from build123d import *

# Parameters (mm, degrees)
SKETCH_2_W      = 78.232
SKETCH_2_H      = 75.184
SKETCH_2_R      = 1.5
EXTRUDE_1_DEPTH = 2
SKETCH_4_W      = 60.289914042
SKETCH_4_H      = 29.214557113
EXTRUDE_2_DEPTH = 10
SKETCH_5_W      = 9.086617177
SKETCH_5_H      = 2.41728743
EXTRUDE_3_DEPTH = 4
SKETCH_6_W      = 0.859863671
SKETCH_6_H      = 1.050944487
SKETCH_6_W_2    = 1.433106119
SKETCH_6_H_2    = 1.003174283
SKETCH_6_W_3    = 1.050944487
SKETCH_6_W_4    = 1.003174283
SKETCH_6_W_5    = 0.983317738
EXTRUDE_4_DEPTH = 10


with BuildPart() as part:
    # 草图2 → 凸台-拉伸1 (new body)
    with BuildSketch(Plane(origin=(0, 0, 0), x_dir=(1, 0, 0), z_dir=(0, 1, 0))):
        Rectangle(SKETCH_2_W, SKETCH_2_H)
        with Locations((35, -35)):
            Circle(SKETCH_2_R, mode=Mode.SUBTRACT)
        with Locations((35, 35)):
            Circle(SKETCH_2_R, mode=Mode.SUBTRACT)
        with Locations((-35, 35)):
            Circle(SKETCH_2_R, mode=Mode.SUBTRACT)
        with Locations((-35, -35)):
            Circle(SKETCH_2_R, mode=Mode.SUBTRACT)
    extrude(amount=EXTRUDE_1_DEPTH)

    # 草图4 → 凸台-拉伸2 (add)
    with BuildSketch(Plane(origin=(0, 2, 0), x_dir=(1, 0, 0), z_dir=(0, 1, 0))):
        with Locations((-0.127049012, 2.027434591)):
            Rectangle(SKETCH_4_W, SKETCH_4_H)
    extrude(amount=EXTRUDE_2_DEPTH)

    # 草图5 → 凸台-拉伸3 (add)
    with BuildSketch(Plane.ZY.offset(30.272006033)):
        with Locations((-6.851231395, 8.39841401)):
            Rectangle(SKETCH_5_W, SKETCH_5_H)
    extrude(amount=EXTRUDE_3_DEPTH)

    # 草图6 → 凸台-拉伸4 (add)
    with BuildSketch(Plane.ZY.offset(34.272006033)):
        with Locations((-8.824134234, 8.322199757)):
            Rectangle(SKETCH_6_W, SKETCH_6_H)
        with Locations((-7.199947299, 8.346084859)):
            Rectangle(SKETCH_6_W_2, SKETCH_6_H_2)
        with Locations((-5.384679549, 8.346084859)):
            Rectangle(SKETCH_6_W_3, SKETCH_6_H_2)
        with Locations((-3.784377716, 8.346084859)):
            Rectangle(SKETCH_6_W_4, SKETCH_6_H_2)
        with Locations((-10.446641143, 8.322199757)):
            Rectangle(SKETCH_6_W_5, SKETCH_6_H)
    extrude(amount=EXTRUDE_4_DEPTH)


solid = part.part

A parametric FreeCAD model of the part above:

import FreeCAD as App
import Part
import Sketcher
from FreeCAD import Vector


def add_polygon(sketch, points):
    """Adds a closed chain of lines whose ends are joined by coincident constraints."""
    first, n = sketch.GeometryCount, len(points)
    for a, b in zip(points, points[1:] + points[:1]):
        sketch.addGeometry(Part.LineSegment(App.Vector(*a, 0), App.Vector(*b, 0)), False)
    for i in range(n):
        sketch.addConstraint(Sketcher.Constraint("Coincident", first + i, 2, first + (i + 1) % n, 1))

doc = App.newDocument("Part")
body = doc.addObject("PartDesign::Body", "Body")

sketch1 = doc.addObject("Sketcher::SketchObject", "Sketch")
body.addObject(sketch1)
sketch1.AttachmentSupport = (doc.XZ_Plane, [""])
sketch1.MapMode = "FlatFace"
add_polygon(sketch1, [(-39.1, -37.6), (-39.1, 37.6), (39.1, 37.6), (39.1, -37.6)])
sketch1.addGeometry(Part.Circle(Vector(-35, 35, 0), Vector(0, 0, 1), 1.5), False)
sketch1.addGeometry(Part.Circle(Vector(35, 35, 0), Vector(0, 0, 1), 1.5), False)
sketch1.addGeometry(Part.Circle(Vector(-35, -35, 0), Vector(0, 0, 1), 1.5), False)
sketch1.addGeometry(Part.Circle(Vector(35, -35, 0), Vector(0, 0, 1), 1.5), False)
sketch1.addConstraint(Sketcher.Constraint("Vertical", 0))
sketch1.addConstraint(Sketcher.Constraint("Horizontal", 1))
sketch1.addConstraint(Sketcher.Constraint("Vertical", 2))
sketch1.addConstraint(Sketcher.Constraint("Horizontal", 3))
sketch1.addConstraint(Sketcher.Constraint("Equal", 4, 5))
sketch1.addConstraint(Sketcher.Constraint("Equal", 5, 6))
sketch1.addConstraint(Sketcher.Constraint("Equal", 6, 7))
sketch1.addConstraint(Sketcher.Constraint("Symmetric", 5, 3, 6, 3, -1, 1))
sketch1.addConstraint(Sketcher.Constraint("Symmetric", 4, 3, 7, 3, -1, 1))
sketch1.addConstraint(Sketcher.Constraint("Symmetric", 0, 2, 2, 2, -1, 1))
sketch1.addConstraint(Sketcher.Constraint("Symmetric", 4, 3, 5, 3, -2))
sketch1.addConstraint(Sketcher.Constraint("Diameter", 4, 3.0))
sketch1.addConstraint(Sketcher.Constraint("DistanceX", 4, 3, -1, 1, 35.0))
sketch1.addConstraint(Sketcher.Constraint("DistanceY", -1, 1, 4, 3, 35.0))
sketch1.addConstraint(Sketcher.Constraint("DistanceX", 1, 1, 1, 2, 78.232))
sketch1.addConstraint(Sketcher.Constraint("DistanceY", 0, 1, 0, 2, 75.184))
pad1 = doc.addObject("PartDesign::Pad", "Pad")
body.addObject(pad1)
pad1.Profile = sketch1
pad1.Length = 2
pad1.Reversed = True

sketch2 = doc.addObject("Sketcher::SketchObject", "Sketch001")
body.addObject(sketch2)
sketch2.AttachmentSupport = (doc.XZ_Plane, [""])
sketch2.MapMode = "FlatFace"
sketch2.AttachmentOffset = App.Placement(Vector(0, 0, -2), App.Rotation())
add_polygon(sketch2, [(-30, -17), (-30, 13), (30, 13), (30, -17)])
sketch2.addConstraint(Sketcher.Constraint("Vertical", 0))
sketch2.addConstraint(Sketcher.Constraint("Horizontal", 1))
sketch2.addConstraint(Sketcher.Constraint("Vertical", 2))
sketch2.addConstraint(Sketcher.Constraint("Horizontal", 3))
sketch2.addConstraint(Sketcher.Constraint("DistanceX", 1, 1, 1, 2, 60.289914))
sketch2.addConstraint(Sketcher.Constraint("DistanceY", 0, 1, 0, 2, 29.214557))
sketch2.addConstraint(Sketcher.Constraint("DistanceX", -1, 1, 1, 2, 30.017908))
sketch2.addConstraint(Sketcher.Constraint("DistanceY", -1, 1, 0, 2, 12.579844))
pad2 = doc.addObject("PartDesign::Pad", "Pad001")
body.addObject(pad2)
pad2.Profile = sketch2
pad2.Length = 10
pad2.Reversed = True

sketch3 = doc.addObject("Sketcher::SketchObject", "Sketch002")
body.addObject(sketch3)
sketch3.AttachmentSupport = (doc.YZ_Plane, [""])
sketch3.MapMode = "FlatFace"
sketch3.AttachmentOffset = App.Placement(Vector(0, 0, -30.272006), App.Rotation())
add_polygon(sketch3, [(9.6, -11.4), (7.2, -11.4), (7.2, -2.3), (9.6, -2.3)])
sketch3.addConstraint(Sketcher.Constraint("Horizontal", 0))
sketch3.addConstraint(Sketcher.Constraint("Vertical", 1))
sketch3.addConstraint(Sketcher.Constraint("Horizontal", 2))
sketch3.addConstraint(Sketcher.Constraint("Vertical", 3))
sketch3.addConstraint(Sketcher.Constraint("DistanceX", 0, 2, 0, 1, 2.417287))
sketch3.addConstraint(Sketcher.Constraint("DistanceY", 1, 1, 1, 2, 9.086617))
sketch3.addConstraint(Sketcher.Constraint("DistanceX", -1, 1, 0, 2, 7.18977))
sketch3.addConstraint(Sketcher.Constraint("DistanceY", 0, 2, -1, 1, 11.39454))
pad3 = doc.addObject("PartDesign::Pad", "Pad002")
body.addObject(pad3)
pad3.Profile = sketch3
pad3.Length = 4
pad3.Reversed = True

sketch4 = doc.addObject("Sketcher::SketchObject", "Sketch003")
body.addObject(sketch4)
sketch4.AttachmentSupport = (doc.YZ_Plane, [""])
sketch4.MapMode = "FlatFace"
sketch4.AttachmentOffset = App.Placement(Vector(0, 0, -34.272006), App.Rotation())
add_polygon(sketch4, [(8.8, -9.3), (7.8, -9.3), (7.8, -8.4), (8.8, -8.4)])
add_polygon(sketch4, [(8.8, -7.9), (7.8, -7.9), (7.8, -6.5), (8.8, -6.5)])
add_polygon(sketch4, [(8.8, -5.9), (7.8, -5.9), (7.8, -4.9), (8.8, -4.9)])
add_polygon(sketch4, [(8.8, -4.3), (7.8, -4.3), (7.8, -3.3), (8.8, -3.3)])
add_polygon(sketch4, [(8.8, -10.9), (7.8, -10.9), (7.8, -10), (8.8, -10)])
sketch4.addConstraint(Sketcher.Constraint("Horizontal", 0))
sketch4.addConstraint(Sketcher.Constraint("Vertical", 1))
sketch4.addConstraint(Sketcher.Constraint("Horizontal", 2))
sketch4.addConstraint(Sketcher.Constraint("Vertical", 3))
sketch4.addConstraint(Sketcher.Constraint("Horizontal", 4))
sketch4.addConstraint(Sketcher.Constraint("Vertical", 5))
sketch4.addConstraint(Sketcher.Constraint("Horizontal", 6))
sketch4.addConstraint(Sketcher.Constraint("Vertical", 7))
sketch4.addConstraint(Sketcher.Constraint("Horizontal", 8))
sketch4.addConstraint(Sketcher.Constraint("Vertical", 9))
sketch4.addConstraint(Sketcher.Constraint("Horizontal", 10))
sketch4.addConstraint(Sketcher.Constraint("Vertical", 11))
sketch4.addConstraint(Sketcher.Constraint("Horizontal", 12))
sketch4.addConstraint(Sketcher.Constraint("Vertical", 13))
sketch4.addConstraint(Sketcher.Constraint("Horizontal", 14))
sketch4.addConstraint(Sketcher.Constraint("Vertical", 15))
sketch4.addConstraint(Sketcher.Constraint("Horizontal", 16))
sketch4.addConstraint(Sketcher.Constraint("Vertical", 17))
sketch4.addConstraint(Sketcher.Constraint("Horizontal", 18))
sketch4.addConstraint(Sketcher.Constraint("Vertical", 19))
sketch4.addConstraint(Sketcher.Constraint("Vertical", 3, 2, 6, 2))
sketch4.addConstraint(Sketcher.Constraint("Vertical", 5, 2, 8, 2))
sketch4.addConstraint(Sketcher.Constraint("Vertical", 7, 2, 10, 2))
sketch4.addConstraint(Sketcher.Constraint("Vertical", 9, 2, 12, 2))
sketch4.addConstraint(Sketcher.Constraint("Vertical", 11, 2, 14, 2))
sketch4.addConstraint(Sketcher.Constraint("Vertical", 1, 2, 16, 2))
sketch4.addConstraint(Sketcher.Constraint("Vertical", 15, 2, 18, 2))
sketch4.addConstraint(Sketcher.Constraint("Equal", 18, 9))
sketch4.addConstraint(Sketcher.Constraint("Equal", 14, 13))
sketch4.addConstraint(Sketcher.Constraint("DistanceY", 4, 2, -1, 1, 7.9165))
sketch4.addConstraint(Sketcher.Constraint("DistanceY", 16, 2, -1, 1, 10.9383))
sketch4.addConstraint(Sketcher.Constraint("DistanceX", 0, 2, 0, 1, 1.050944))
sketch4.addConstraint(Sketcher.Constraint("DistanceX", 4, 2, 4, 1, 1.003174))
sketch4.addConstraint(Sketcher.Constraint("DistanceY", 1, 1, 1, 2, 0.859864))
sketch4.addConstraint(Sketcher.Constraint("DistanceY", 5, 1, 5, 2, 1.433106))
sketch4.addConstraint(Sketcher.Constraint("DistanceY", 17, 1, 17, 2, 0.983318))
sketch4.addConstraint(Sketcher.Constraint("DistanceX", -1, 1, 2, 2, 8.847672))
sketch4.addConstraint(Sketcher.Constraint("DistanceY", 8, 2, -1, 1, 5.910152))
sketch4.addConstraint(Sketcher.Constraint("DistanceY", 13, 2, -1, 1, 3.282791))
sketch4.addConstraint(Sketcher.Constraint("DistanceY", 1, 2, 5, 2, 1.910808))
pad4 = doc.addObject("PartDesign::Pad", "Pad003")
body.addObject(pad4)
pad4.Profile = sketch4
pad4.Length = 10
pad4.Reversed = True

doc.recompute()
